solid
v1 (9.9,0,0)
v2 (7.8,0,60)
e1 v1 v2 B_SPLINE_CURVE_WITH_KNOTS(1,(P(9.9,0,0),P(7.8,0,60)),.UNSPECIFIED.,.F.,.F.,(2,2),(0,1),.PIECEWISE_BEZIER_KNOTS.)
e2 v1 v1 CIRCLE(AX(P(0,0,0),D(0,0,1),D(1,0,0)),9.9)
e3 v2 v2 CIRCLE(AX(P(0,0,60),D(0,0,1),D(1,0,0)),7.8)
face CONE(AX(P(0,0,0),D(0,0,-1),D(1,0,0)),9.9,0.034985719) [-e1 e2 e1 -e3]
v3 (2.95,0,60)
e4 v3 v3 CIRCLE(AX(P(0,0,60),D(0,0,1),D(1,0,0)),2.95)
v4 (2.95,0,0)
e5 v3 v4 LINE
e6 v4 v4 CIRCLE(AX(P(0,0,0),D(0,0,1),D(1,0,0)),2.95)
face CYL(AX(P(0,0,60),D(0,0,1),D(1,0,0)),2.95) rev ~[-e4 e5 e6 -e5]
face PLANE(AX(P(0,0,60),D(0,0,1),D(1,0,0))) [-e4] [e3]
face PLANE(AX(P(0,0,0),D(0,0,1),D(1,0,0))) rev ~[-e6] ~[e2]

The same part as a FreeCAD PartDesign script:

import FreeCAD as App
import Part
import Sketcher
from FreeCAD import Vector

doc = App.newDocument("Part")
body = doc.addObject("PartDesign::Body", "Body")

# Sketch on XY plane
sketch1 = body.newObject("Sketcher::SketchObject", "Sketch")
sketch1.AttachmentSupport = (doc.getObject("XY_Plane"), [""])
sketch1.MapMode = "FlatFace"
sketch1.addGeometry(Part.Circle(Vector(0, 0, 0), Vector(0, 0, 1), 10), False)
sketch1.addConstraint(Sketcher.Constraint("Coincident", 0, 3, -1, 1))
sketch1.addConstraint(Sketcher.Constraint("Diameter", 0, 19.8))

# Sketch on XY plane
sketch2 = body.newObject("Sketcher::SketchObject", "Sketch001")
sketch2.AttachmentSupport = (doc.getObject("XY_Plane"), [""])
sketch2.MapMode = "FlatFace"
sketch2.AttachmentOffset = App.Placement(Vector(0, 0, 60), App.Rotation())
sketch2.addGeometry(Part.Circle(Vector(0, 0, 0), Vector(0, 0, 1), 8), False)
sketch2.addConstraint(Sketcher.Constraint("Coincident", 0, 3, -1, 1))
sketch2.addConstraint(Sketcher.Constraint("Diameter", 0, 15.6))

additiveloft = body.newObject("PartDesign::AdditiveLoft", "AdditiveLoft")
additiveloft.Profile = sketch1
additiveloft.Sections = [sketch2]

# Sketch on XY plane
sketch3 = body.newObject("Sketcher::SketchObject", "Sketch002")
sketch3.AttachmentSupport = (doc.getObject("XY_Plane"), [""])
sketch3.MapMode = "FlatFace"
sketch3.AttachmentOffset = App.Placement(Vector(0, 0, 60), App.Rotation())
sketch3.addGeometry(Part.Circle(Vector(0, 0, 0), Vector(0, 0, 1), 3), False)
sketch3.addConstraint(Sketcher.Constraint("Coincident", 0, 3, -1, 1))
sketch3.addConstraint(Sketcher.Constraint("Diameter", 0, 5.9))
pocket1 = body.newObject("PartDesign::Pocket", "Pocket")
pocket1.Profile = sketch3
pocket1.Type = "ThroughAll"

doc.recompute()
